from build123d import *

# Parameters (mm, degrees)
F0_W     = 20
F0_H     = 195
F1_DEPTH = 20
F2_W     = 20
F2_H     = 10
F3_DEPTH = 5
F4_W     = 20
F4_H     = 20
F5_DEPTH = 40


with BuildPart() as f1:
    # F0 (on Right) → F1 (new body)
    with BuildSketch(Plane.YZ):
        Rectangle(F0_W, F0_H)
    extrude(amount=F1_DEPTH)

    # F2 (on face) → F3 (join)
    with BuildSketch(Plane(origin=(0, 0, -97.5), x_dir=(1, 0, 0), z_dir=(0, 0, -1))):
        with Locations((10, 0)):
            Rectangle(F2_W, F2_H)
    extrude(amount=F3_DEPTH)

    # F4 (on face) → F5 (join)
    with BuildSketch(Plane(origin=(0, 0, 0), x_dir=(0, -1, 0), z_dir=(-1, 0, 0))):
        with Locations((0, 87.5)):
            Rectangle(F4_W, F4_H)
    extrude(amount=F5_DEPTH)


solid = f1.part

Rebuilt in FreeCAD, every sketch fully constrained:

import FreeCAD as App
import Part
import Sketcher
Q = App.Units.Quantity


def add_polygon(sketch, points):
    """Adds a closed chain of lines whose ends are joined by coincident constraints."""
    first, n = sketch.GeometryCount, len(points)
    for a, b in zip(points, points[1:] + points[:1]):
        sketch.addGeometry(Part.LineSegment(App.Vector(*a, 0), App.Vector(*b, 0)), False)
    for i in range(n):
        sketch.addConstraint(Sketcher.Constraint("Coincident", first + i, 2, first + (i + 1) % n, 1))

doc = App.newDocument("Part")
body = doc.addObject("PartDesign::Body", "Body")

# Sketch on YZ plane
sketch1 = body.newObject("Sketcher::SketchObject", "Sketch")
sketch1.AttachmentSupport = (doc.getObject("YZ_Plane"), [""])
sketch1.MapMode = "FlatFace"
add_polygon(sketch1, [(-10, 98), (-10, -98), (10, -98), (10, 98)])  # lines 0-3
sketch1.addConstraint([
    Sketcher.Constraint("Vertical", 0),
    Sketcher.Constraint("Horizontal", 1),
    Sketcher.Constraint("Vertical", 2),
    Sketcher.Constraint("Horizontal", 3),
    Sketcher.Constraint("Symmetric", 0, 2, 2, 2, -1, 1),
    Sketcher.Constraint("DistanceX", 1, 1, 1, 2, Q("20 mm")),
    Sketcher.Constraint("DistanceY", 0, 2, 0, 1, Q("195 mm")),
])
pad1 = body.newObject("PartDesign::Pad", "Pad")
pad1.Profile = sketch1
pad1.Length = 20

# Sketch on XY plane
sketch2 = body.newObject("Sketcher::SketchObject", "Sketch001")
sketch2.AttachmentSupport = (doc.getObject("XY_Plane"), [""])
sketch2.MapMode = "FlatFace"
sketch2.AttachmentOffset = App.Placement(App.Vector(0, 0, -97.5), App.Rotation())
add_polygon(sketch2, [(0, -5), (0, 5), (20, 5), (20, -5)])  # lines 0-3
sketch2.addConstraint([
    Sketcher.Constraint("Vertical", 0),
    Sketcher.Constraint("Horizontal", 1),
    Sketcher.Constraint("Vertical", 2),
    Sketcher.Constraint("Horizontal", 3),
    Sketcher.Constraint("Symmetric", 0, 2, 3, 2, -1, 1),
    Sketcher.Constraint("DistanceX", 1, 1, 1, 2, Q("20 mm")),
    Sketcher.Constraint("DistanceY", 0, 1, 0, 2, Q("10 mm")),
])
pad2 = body.newObject("PartDesign::Pad", "Pad001")
pad2.Profile = sketch2
pad2.Length = 5
pad2.Reversed = True

# Sketch on YZ plane
sketch3 = body.newObject("Sketcher::SketchObject", "Sketch002")
sketch3.AttachmentSupport = (doc.getObject("YZ_Plane"), [""])
sketch3.MapMode = "FlatFace"
add_polygon(sketch3, [(10, 98), (10, 78), (-10, 78), (-10, 98)])  # lines 0-3
sketch3.addConstraint([
    Sketcher.Constraint("Vertical", 0),
    Sketcher.Constraint("Horizontal", 1),
    Sketcher.Constraint("Vertical", 2),
    Sketcher.Constraint("Horizontal", 3),
    Sketcher.Constraint("Equal", 3, 0),
    Sketcher.Constraint("DistanceX", 1, 2, 1, 1, Q("20 mm")),
    Sketcher.Constraint("DistanceX", -1, 1, 0, 2, Q("10 mm")),
    Sketcher.Constraint("DistanceY", -1, 1, 0, 2, Q("77.5 mm")),
])
pad3 = body.newObject("PartDesign::Pad", "Pad002")
pad3.Profile = sketch3
pad3.Length = 40
pad3.Reversed = True

doc.recompute()
